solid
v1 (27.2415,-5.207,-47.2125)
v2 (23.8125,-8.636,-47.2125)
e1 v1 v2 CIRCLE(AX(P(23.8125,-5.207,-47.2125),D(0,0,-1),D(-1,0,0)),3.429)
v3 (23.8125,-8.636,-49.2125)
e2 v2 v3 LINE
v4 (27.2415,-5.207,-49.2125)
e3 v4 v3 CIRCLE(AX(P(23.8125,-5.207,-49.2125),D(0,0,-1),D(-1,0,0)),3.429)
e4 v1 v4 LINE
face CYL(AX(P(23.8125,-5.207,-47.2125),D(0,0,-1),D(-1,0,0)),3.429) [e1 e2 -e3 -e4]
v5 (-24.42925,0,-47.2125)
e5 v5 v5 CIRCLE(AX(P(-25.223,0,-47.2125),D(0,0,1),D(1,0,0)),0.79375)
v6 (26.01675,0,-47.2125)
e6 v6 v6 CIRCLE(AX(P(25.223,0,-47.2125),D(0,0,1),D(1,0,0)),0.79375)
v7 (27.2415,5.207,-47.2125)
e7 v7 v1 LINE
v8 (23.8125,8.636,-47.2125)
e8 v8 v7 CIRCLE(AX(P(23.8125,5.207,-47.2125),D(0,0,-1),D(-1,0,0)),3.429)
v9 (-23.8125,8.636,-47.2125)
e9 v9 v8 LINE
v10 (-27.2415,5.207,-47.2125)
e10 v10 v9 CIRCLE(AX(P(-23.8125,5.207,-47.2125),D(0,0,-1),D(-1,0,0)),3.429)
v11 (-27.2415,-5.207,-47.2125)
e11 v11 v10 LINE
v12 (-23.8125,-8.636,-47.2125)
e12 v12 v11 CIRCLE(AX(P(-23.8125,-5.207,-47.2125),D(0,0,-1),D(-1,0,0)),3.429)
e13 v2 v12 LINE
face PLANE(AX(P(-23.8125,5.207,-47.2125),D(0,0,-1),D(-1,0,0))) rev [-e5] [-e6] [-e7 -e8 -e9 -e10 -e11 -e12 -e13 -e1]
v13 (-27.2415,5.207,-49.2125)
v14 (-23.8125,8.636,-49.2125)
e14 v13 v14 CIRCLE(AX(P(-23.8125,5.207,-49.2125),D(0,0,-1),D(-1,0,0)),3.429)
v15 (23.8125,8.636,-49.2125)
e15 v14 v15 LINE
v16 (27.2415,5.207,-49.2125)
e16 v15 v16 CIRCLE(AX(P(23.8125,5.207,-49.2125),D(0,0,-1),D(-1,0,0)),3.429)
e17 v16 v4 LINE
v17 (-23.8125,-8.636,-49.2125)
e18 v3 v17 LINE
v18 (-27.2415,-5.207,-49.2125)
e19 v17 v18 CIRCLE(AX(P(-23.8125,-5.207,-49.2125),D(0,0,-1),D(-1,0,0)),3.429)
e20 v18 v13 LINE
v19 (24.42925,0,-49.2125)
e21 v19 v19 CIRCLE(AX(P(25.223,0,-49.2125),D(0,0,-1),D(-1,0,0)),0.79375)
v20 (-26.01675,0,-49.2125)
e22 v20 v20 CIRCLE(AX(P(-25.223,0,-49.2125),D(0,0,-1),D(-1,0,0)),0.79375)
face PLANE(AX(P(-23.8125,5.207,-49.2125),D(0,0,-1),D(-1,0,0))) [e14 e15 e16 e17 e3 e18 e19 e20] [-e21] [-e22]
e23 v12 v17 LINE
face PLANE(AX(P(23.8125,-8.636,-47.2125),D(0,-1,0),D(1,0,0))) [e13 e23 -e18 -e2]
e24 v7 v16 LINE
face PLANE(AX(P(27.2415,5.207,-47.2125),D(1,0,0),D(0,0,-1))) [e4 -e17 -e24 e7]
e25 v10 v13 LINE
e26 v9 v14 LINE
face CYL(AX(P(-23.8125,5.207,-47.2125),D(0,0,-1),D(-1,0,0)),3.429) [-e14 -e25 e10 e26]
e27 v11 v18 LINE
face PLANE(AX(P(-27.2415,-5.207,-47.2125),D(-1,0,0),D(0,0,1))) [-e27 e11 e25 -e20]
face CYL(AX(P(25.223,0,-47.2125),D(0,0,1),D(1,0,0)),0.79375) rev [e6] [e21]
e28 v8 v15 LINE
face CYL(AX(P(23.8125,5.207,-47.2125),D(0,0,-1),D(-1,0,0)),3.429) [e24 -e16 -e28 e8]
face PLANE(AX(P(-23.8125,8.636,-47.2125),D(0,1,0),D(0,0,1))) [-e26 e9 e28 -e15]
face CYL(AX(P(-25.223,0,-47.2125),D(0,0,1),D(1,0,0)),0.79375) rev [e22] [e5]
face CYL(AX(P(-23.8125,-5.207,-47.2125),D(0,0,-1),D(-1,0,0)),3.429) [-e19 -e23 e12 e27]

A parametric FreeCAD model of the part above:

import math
import FreeCAD as App
import Part
import Sketcher
from FreeCAD import Vector
Q = App.Units.Quantity

doc = App.newDocument("Part")
params = doc.addObject("Spreadsheet::Sheet", "Params")
for row, (alias, value) in enumerate([
    ("sketch1_radius", "0.135 in"),
    ("sketch1_height", "0.41 in"),
    ("sketch1_width", "1.875 in"),
    ("pad1_length", "2 mm"),
    ("sketch2_diameter", "0.0625 in"),
    ("hole_diameter", "0.0625 in"),
    ("hole_depth", "0.75 in"),
], start=1):
    params.set(f"A{row}", alias)
    params.set(f"B{row}", "=" + value)
    params.setAlias(f"B{row}", alias)

body = doc.addObject("PartDesign::Body", "Body")

sketch1 = body.newObject("Sketcher::SketchObject", "Sketch")
sketch1.AttachmentSupport = (doc.getObject("XY_Plane"), [""])
sketch1.MapMode = "FlatFace"
sketch1.AttachmentOffset = App.Placement(Vector(0, 0, -1.9375 * 25.4), App.Rotation())
sketch1.addGeometry([
    Part.LineSegment(Vector(-23.8125, 8.636, 0), Vector(23.8125, 8.636, 0)),
    Part.ArcOfCircle(Part.Circle(Vector(23.8125, 5.207, 0), Vector(0, 0, 1), 3.429), math.radians(0), math.radians(90)),
    Part.LineSegment(Vector(27.2415, 5.207, 0), Vector(27.2415, -5.207, 0)),
    Part.ArcOfCircle(Part.Circle(Vector(23.8125, -5.207, 0), Vector(0, 0, 1), 3.429), math.radians(-90), math.radians(0)),
    Part.LineSegment(Vector(23.8125, -8.636, 0), Vector(-23.8125, -8.636, 0)),
    Part.ArcOfCircle(Part.Circle(Vector(-23.8125, -5.207, 0), Vector(0, 0, 1), 3.429), math.radians(180), math.radians(270)),
    Part.LineSegment(Vector(-27.2415, -5.207, 0), Vector(-27.2415, 5.207, 0)),
    Part.ArcOfCircle(Part.Circle(Vector(-23.8125, 5.207, 0), Vector(0, 0, 1), 3.429), math.radians(90), math.radians(180)),
], False)
sketch1.addConstraint([
    Sketcher.Constraint("Tangent", 0, 2, 1, 2),
    Sketcher.Constraint("Tangent", 1, 1, 2, 1),
    Sketcher.Constraint("Tangent", 2, 2, 3, 2),
    Sketcher.Constraint("Tangent", 3, 1, 4, 1),
    Sketcher.Constraint("Tangent", 4, 2, 5, 2),
    Sketcher.Constraint("Tangent", 5, 1, 6, 1),
    Sketcher.Constraint("Tangent", 6, 2, 7, 2),
    Sketcher.Constraint("Tangent", 7, 1, 0, 1),
    Sketcher.Constraint("Horizontal", 0),
    Sketcher.Constraint("Vertical", 2),
    Sketcher.Constraint("Horizontal", 4),
    Sketcher.Constraint("Vertical", 6),
    Sketcher.Constraint("Equal", 1, 3),
    Sketcher.Constraint("Equal", 3, 5),
    Sketcher.Constraint("Equal", 5, 7),
    Sketcher.Constraint("Symmetric", 1, 3, 5, 3, -1, 1),
    Sketcher.Constraint("Radius", 1, Q("0.135 in")),
    Sketcher.Constraint("DistanceY", 2, 2, 2, 1, Q("0.41 in")),
    Sketcher.Constraint("DistanceX", 0, 1, 0, 2, Q("1.875 in")),
])
sketch1.setExpression("Constraints[16]", "Params.sketch1_radius")
sketch1.setExpression("Constraints[17]", "Params.sketch1_height")
sketch1.setExpression("Constraints[18]", "Params.sketch1_width")
pad1 = body.newObject("PartDesign::Pad", "Pad")
pad1.Profile = sketch1
pad1.setExpression("Length", "Params.pad1_length")

sketch2 = body.newObject("Sketcher::SketchObject", "Sketch001")
sketch2.AttachmentSupport = (doc.getObject("XY_Plane"), [""])
sketch2.MapMode = "FlatFace"
sketch2.AttachmentOffset = App.Placement(Vector(0, 0, -47.2125), App.Rotation())
sketch2.addGeometry([
    Part.Circle(Vector(25.223, 0, 0), Vector(0, 0, 1), 0.79375),
    Part.Circle(Vector(-25.223, 0, 0), Vector(0, 0, 1), 0.79375),
], False)
sketch2.addConstraint([
    Sketcher.Constraint("Equal", 0, 1),
    Sketcher.Constraint("Symmetric", 0, 3, 1, 3, -1, 1),
    Sketcher.Constraint("PointOnObject", 0, 3, -1),
    Sketcher.Constraint("Diameter", 0, Q("0.0625 in")),
    Sketcher.Constraint("DistanceX", -1, 1, 0, 3, 25.223),
])
sketch2.setExpression("Constraints[3]", "Params.sketch2_diameter")
doc.recompute()
hole = body.newObject("PartDesign::Hole", "Hole")
hole.Profile = sketch2
hole.ThreadType = "None"
hole.setExpression("Diameter", "Params.hole_diameter")
hole.DepthType = "Dimension"
hole.setExpression("Depth", "Params.hole_depth")
hole.DrillPoint = "Angled"
hole.DrillPointAngle = 118

doc.recompute()
